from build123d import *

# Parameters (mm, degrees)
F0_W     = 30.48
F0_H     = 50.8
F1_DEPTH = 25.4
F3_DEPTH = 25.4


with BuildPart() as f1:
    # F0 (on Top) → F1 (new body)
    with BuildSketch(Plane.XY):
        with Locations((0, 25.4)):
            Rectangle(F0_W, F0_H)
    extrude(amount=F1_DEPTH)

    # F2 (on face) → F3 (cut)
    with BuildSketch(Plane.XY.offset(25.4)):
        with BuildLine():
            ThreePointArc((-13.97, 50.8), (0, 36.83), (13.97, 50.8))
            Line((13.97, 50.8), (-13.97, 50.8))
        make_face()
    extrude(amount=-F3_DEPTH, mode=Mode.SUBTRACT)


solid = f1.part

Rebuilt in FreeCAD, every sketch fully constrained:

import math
import FreeCAD as App
import Part
import Sketcher
Q = App.Units.Quantity


def add_polygon(sketch, points):
    """Adds a closed chain of lines whose ends are joined by coincident constraints."""
    first, n = sketch.GeometryCount, len(points)
    for a, b in zip(points, points[1:] + points[:1]):
        sketch.addGeometry(Part.LineSegment(App.Vector(*a, 0), App.Vector(*b, 0)), False)
    for i in range(n):
        sketch.addConstraint(Sketcher.Constraint("Coincident", first + i, 2, first + (i + 1) % n, 1))

doc = App.newDocument("Part")
body = doc.addObject("PartDesign::Body", "Body")

# Sketch on XY plane
sketch1 = doc.addObject("Sketcher::SketchObject", "Sketch")
body.addObject(sketch1)
sketch1.AttachmentSupport = (doc.XY_Plane, [""])
sketch1.MapMode = "FlatFace"
add_polygon(sketch1, [(-15, 51), (-15, 0), (15, 0), (15, 51)])  # lines 0-3
sketch1.addConstraint(Sketcher.Constraint("Vertical", 0))
sketch1.addConstraint(Sketcher.Constraint("Horizontal", 1))
sketch1.addConstraint(Sketcher.Constraint("Vertical", 2))
sketch1.addConstraint(Sketcher.Constraint("Horizontal", 3))
sketch1.addConstraint(Sketcher.Constraint("Symmetric", 0, 2, 1, 2, -1, 1))
sketch1.addConstraint(Sketcher.Constraint("DistanceY", 0, 2, 0, 1, Q("2 in")))
sketch1.addConstraint(Sketcher.Constraint("DistanceX", 1, 1, 1, 2, Q("1.2 in")))
pad1 = doc.addObject("PartDesign::Pad", "Pad")
body.addObject(pad1)
pad1.Profile = sketch1
pad1.Length = Q("1 in")

# Sketch on XY plane
sketch2 = doc.addObject("Sketcher::SketchObject", "Sketch001")
body.addObject(sketch2)
sketch2.AttachmentSupport = (doc.XY_Plane, [""])
sketch2.MapMode = "FlatFace"
sketch2.AttachmentOffset = App.Placement(App.Vector(0, 0, 1 * 25.4), App.Rotation())
sketch2.addGeometry(Part.ArcOfCircle(Part.Circle(App.Vector(0, 51, 0), App.Vector(0, 0, 1), 14), math.radians(180), math.radians(360)), False)
sketch2.addGeometry(Part.LineSegment(App.Vector(14, 51, 0), App.Vector(-14, 51, 0)), False)
sketch2.addConstraint(Sketcher.Constraint("Coincident", 0, 1, 1, 2))
sketch2.addConstraint(Sketcher.Constraint("Coincident", 1, 1, 0, 2))
sketch2.addConstraint(Sketcher.Constraint("Horizontal", 1))
sketch2.addConstraint(Sketcher.Constraint("PointOnObject", 0, 3, -2))
sketch2.addConstraint(Sketcher.Constraint("Radius", 0, Q("0.55 in")))
sketch2.addConstraint(Sketcher.Constraint("DistanceY", -1, 1, 0, 3, Q("2 in")))
sketch2.addConstraint(Sketcher.Constraint("DistanceY", -1, 1, 0, 1, Q("2 in")))
pocket1 = doc.addObject("PartDesign::Pocket", "Pocket")
body.addObject(pocket1)
pocket1.Profile = sketch2
pocket1.Length = Q("1 in")

doc.recompute()
